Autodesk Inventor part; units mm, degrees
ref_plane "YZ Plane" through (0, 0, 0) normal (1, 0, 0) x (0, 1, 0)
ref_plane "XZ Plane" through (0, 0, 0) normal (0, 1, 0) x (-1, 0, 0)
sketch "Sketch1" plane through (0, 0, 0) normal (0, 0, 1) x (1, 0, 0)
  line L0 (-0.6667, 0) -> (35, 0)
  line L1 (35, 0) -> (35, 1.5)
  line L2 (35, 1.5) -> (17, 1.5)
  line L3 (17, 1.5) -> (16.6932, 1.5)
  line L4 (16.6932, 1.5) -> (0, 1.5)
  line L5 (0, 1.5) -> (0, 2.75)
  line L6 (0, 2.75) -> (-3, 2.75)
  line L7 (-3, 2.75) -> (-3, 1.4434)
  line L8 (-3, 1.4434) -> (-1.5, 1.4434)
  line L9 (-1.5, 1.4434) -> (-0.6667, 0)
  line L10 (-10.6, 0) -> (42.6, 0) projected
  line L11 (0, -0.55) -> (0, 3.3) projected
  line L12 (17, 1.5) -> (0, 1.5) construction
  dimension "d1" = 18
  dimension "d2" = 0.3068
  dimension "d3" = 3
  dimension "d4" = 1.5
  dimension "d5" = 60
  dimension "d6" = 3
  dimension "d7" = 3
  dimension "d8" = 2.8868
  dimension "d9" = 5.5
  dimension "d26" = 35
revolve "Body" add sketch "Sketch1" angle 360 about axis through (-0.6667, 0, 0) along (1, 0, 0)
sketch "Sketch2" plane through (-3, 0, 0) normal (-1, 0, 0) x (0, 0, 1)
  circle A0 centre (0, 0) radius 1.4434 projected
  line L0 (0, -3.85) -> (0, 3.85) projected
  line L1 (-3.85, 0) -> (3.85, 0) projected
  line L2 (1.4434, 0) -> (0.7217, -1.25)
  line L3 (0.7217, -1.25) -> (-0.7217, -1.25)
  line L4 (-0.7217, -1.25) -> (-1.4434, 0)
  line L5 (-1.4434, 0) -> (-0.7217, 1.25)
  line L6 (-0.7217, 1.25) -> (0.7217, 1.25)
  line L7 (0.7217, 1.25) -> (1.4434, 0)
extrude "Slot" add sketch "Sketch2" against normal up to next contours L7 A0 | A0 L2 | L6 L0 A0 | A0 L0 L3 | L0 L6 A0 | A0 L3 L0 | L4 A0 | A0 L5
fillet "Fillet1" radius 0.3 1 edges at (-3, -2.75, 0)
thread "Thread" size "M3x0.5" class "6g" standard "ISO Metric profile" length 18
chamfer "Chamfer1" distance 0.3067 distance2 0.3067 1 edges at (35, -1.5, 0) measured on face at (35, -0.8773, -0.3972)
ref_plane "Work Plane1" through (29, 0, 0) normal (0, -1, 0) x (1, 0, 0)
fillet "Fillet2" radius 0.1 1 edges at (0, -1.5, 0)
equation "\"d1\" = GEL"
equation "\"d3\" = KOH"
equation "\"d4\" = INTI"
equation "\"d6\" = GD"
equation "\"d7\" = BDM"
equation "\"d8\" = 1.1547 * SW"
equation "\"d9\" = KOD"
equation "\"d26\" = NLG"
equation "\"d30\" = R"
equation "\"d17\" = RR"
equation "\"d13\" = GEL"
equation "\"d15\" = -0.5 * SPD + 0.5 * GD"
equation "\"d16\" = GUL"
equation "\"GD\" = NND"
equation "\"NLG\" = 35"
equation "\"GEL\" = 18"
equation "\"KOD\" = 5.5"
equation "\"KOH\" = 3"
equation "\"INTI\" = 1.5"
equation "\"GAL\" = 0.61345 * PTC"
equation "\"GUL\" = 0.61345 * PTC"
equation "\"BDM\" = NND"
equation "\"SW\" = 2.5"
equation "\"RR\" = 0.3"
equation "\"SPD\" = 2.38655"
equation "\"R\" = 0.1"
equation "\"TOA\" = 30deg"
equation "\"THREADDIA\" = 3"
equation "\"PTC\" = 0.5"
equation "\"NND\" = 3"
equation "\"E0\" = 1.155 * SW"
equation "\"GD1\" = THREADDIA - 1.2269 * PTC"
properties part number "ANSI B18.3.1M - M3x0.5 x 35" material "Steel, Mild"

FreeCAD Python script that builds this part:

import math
import FreeCAD as App
import Part
import Sketcher

V = App.Vector
Q = App.Units.Quantity


def edges_at(feature, points):
    """Names of the edges that pass closest to the given points."""
    edges = feature.Shape.Edges
    near = lambda p: min(range(len(edges)), key=lambda i: edges[i].distToShape(Part.Vertex(*p))[0])
    return sorted({f"Edge{near(p) + 1}" for p in points})

doc = App.newDocument("Part")
params = doc.addObject("Spreadsheet::Sheet", "Params")
for row, (alias, value) in enumerate([
    ("sketch1_width", "35 mm"),
    ("sketch1_width2", "3 mm"),
    ("sketch1_width3", "1.5 mm"),
    ("sketch1_height", "1.25 mm"),
    ("revolution_angle", "360 deg"),
    ("fillet_radius", "0.3 mm"),
    ("chamfer_size", "0.3067 mm"),
    ("chamfer_size2", "0.3067 mm"),
    ("fillet2_radius", "0.1 mm"),
], start=1):
    params.set(f"A{row}", alias)
    params.set(f"B{row}", "=" + value)
    params.setAlias(f"B{row}", alias)

body = doc.addObject("PartDesign::Body", "Body")

sketch1 = body.newObject("Sketcher::SketchObject", "Sketch")
sketch1.AttachmentSupport = (doc.getObject("XY_Plane"), [""])
sketch1.MapMode = "FlatFace"
sketch1.addGeometry([
    Part.LineSegment(V(-1.5, 1.4434, 0), V(-0.6667, 0, 0)),
    Part.LineSegment(V(-0.6667, 0, 0), V(35, 0, 0)),
    Part.LineSegment(V(35, 0, 0), V(35, 1.5, 0)),
    Part.LineSegment(V(35, 1.5, 0), V(0, 1.5, 0)),
    Part.LineSegment(V(0, 1.5, 0), V(0, 2.75, 0)),
    Part.LineSegment(V(0, 2.75, 0), V(-3, 2.75, 0)),
    Part.LineSegment(V(-3, 2.75, 0), V(-3, 1.4434, 0)),
    Part.LineSegment(V(-3, 1.4434, 0), V(-1.5, 1.4434, 0)),
], False)
sketch1.addConstraint([
    Sketcher.Constraint("Coincident", 0, 2, 1, 1),
    Sketcher.Constraint("Coincident", 1, 2, 2, 1),
    Sketcher.Constraint("Coincident", 2, 2, 3, 1),
    Sketcher.Constraint("Coincident", 3, 2, 4, 1),
    Sketcher.Constraint("Coincident", 4, 2, 5, 1),
    Sketcher.Constraint("Coincident", 5, 2, 6, 1),
    Sketcher.Constraint("Coincident", 6, 2, 7, 1),
    Sketcher.Constraint("Coincident", 7, 2, 0, 1),
    Sketcher.Constraint("Horizontal", 1),
    Sketcher.Constraint("Vertical", 2),
    Sketcher.Constraint("Horizontal", 3),
    Sketcher.Constraint("Vertical", 4),
    Sketcher.Constraint("Horizontal", 5),
    Sketcher.Constraint("Vertical", 6),
    Sketcher.Constraint("Horizontal", 7),
    Sketcher.Constraint("PointOnObject", 0, 2, -1),
    Sketcher.Constraint("PointOnObject", 3, 2, -2),
    Sketcher.Constraint("Equal", 7, 2),
    Sketcher.Constraint("DistanceX", 3, 2, 3, 1, Q("35 mm")),
    Sketcher.Constraint("DistanceX", 5, 2, 5, 1, Q("3 mm")),
    Sketcher.Constraint("DistanceX", 7, 1, 7, 2, Q("1.5 mm")),
    Sketcher.Constraint("DistanceY", 4, 1, 4, 2, Q("1.25 mm")),
    Sketcher.Constraint("DistanceX", 1, 1, 1, 2, Q("35.6667 mm")),
    Sketcher.Constraint("DistanceY", 6, 2, 6, 1, Q("1.3066 mm")),
])
sketch1.setExpression("Constraints[18]", "Params.sketch1_width")
sketch1.setExpression("Constraints[19]", "Params.sketch1_width2")
sketch1.setExpression("Constraints[20]", "Params.sketch1_width3")
sketch1.setExpression("Constraints[21]", "Params.sketch1_height")
revolution = body.newObject("PartDesign::Revolution", "Revolution")
revolution.Profile = sketch1
revolution.ReferenceAxis = (sketch1, ["H_Axis"])
revolution.setExpression("Angle", "Params.revolution_angle")

sketch2 = body.newObject("Sketcher::SketchObject", "Sketch001")
sketch2.AttachmentSupport = (doc.getObject("YZ_Plane"), [""])
sketch2.MapMode = "FlatFace"
sketch2.AttachmentOffset = App.Placement(V(0, 0, -3), App.Rotation())
sketch2.addGeometry([
    Part.LineSegment(V(1.25, 0.7217, 0), V(0, 1.4434, 0)),
    Part.ArcOfCircle(Part.Circle(V(0, 0, 0), V(0, 0, 1), 1.4434), math.radians(30.000418), math.radians(90)),
    Part.ArcOfCircle(Part.Circle(V(0, 0, 0), V(0, 0, 1), 1.4434), math.radians(90), math.radians(149.999582)),
    Part.LineSegment(V(0, 1.4434, 0), V(-1.25, 0.7217, 0)),
    Part.ArcOfCircle(Part.Circle(V(0, 0, 0), V(0, 0, 1), 1.4434), math.radians(-30.000418), math.radians(30.000418)),
    Part.LineSegment(V(1.25, 0.7217, 0), V(1.25, -0.7217, 0)),
    Part.LineSegment(V(-1.25, 0.7217, 0), V(-1.25, -0.7217, 0)),
    Part.ArcOfCircle(Part.Circle(V(0, 0, 0), V(0, 0, 1), 1.4434), math.radians(149.999582), math.radians(210.000418)),
    Part.LineSegment(V(-1.25, -0.7217, 0), V(0, -1.4434, 0)),
    Part.ArcOfCircle(Part.Circle(V(0, 0, 0), V(0, 0, 1), 1.4434), math.radians(-149.999582), math.radians(-90)),
    Part.ArcOfCircle(Part.Circle(V(0, 0, 0), V(0, 0, 1), 1.4434), math.radians(-90), math.radians(-30.000418)),
    Part.LineSegment(V(0, -1.4434, 0), V(1.25, -0.7217, 0)),
], False)
sketch2.addConstraint([
    Sketcher.Constraint("Coincident", 0, 1, 1, 1),
    Sketcher.Constraint("Coincident", 1, 2, 0, 2),
    Sketcher.Constraint("Coincident", 2, 1, 3, 1),
    Sketcher.Constraint("Coincident", 3, 2, 2, 2),
    Sketcher.Constraint("Coincident", 4, 1, 5, 2),
    Sketcher.Constraint("Coincident", 5, 1, 4, 2),
    Sketcher.Constraint("Coincident", 6, 1, 7, 1),
    Sketcher.Constraint("Coincident", 7, 2, 6, 2),
    Sketcher.Constraint("Coincident", 8, 1, 9, 1),
    Sketcher.Constraint("Coincident", 9, 2, 8, 2),
    Sketcher.Constraint("Coincident", 10, 1, 11, 1),
    Sketcher.Constraint("Coincident", 11, 2, 10, 2),
    Sketcher.Constraint("Vertical", 5),
    Sketcher.Constraint("Vertical", 6),
    Sketcher.Constraint("Coincident", 1, 3, -1, 1),
    Sketcher.Constraint("Coincident", 2, 3, -1, 1),
    Sketcher.Constraint("Coincident", 4, 3, -1, 1),
    Sketcher.Constraint("Coincident", 7, 3, -1, 1),
    Sketcher.Constraint("Coincident", 9, 3, -1, 1),
    Sketcher.Constraint("Coincident", 10, 3, -1, 1),
    Sketcher.Constraint("Coincident", 2, 1, 1, 2),
    Sketcher.Constraint("Coincident", 5, 1, 0, 1),
    Sketcher.Constraint("Coincident", 6, 1, 3, 2),
    Sketcher.Constraint("Coincident", 8, 1, 7, 2),
    Sketcher.Constraint("Coincident", 10, 1, 9, 2),
    Sketcher.Constraint("PointOnObject", 1, 2, -2),
    Sketcher.Constraint("PointOnObject", 9, 2, -2),
    Sketcher.Constraint("Parallel", 0, 8),
    Sketcher.Constraint("Parallel", 3, 11),
    Sketcher.Constraint("Angle", 0, Q("149.9996 deg")),
    Sketcher.Constraint("Radius", 1, Q("1.4434 mm")),
])
pad1 = body.newObject("PartDesign::Pad", "Pad")
pad1.Profile = sketch2
pad1.Type = "UpToFirst"
doc.recompute()

fillet = body.newObject("PartDesign::Fillet", "Fillet")
fillet.Base = (pad1, edges_at(pad1, [(-3, -2.75, 0)]))
fillet.setExpression("Radius", "Params.fillet_radius")
doc.recompute()

chamfer = body.newObject("PartDesign::Chamfer", "Chamfer")
chamfer.Base = (fillet, edges_at(fillet, [(35, -1.5, 0)]))
chamfer.ChamferType = "Two distances"
chamfer.setExpression("Size", "Params.chamfer_size")
chamfer.setExpression("Size2", "Params.chamfer_size2")
doc.recompute()

fillet2 = body.newObject("PartDesign::Fillet", "Fillet001")
fillet2.Base = (chamfer, edges_at(chamfer, [(0, -1.5, 0)]))
fillet2.setExpression("Radius", "Params.fillet2_radius")

doc.recompute()
